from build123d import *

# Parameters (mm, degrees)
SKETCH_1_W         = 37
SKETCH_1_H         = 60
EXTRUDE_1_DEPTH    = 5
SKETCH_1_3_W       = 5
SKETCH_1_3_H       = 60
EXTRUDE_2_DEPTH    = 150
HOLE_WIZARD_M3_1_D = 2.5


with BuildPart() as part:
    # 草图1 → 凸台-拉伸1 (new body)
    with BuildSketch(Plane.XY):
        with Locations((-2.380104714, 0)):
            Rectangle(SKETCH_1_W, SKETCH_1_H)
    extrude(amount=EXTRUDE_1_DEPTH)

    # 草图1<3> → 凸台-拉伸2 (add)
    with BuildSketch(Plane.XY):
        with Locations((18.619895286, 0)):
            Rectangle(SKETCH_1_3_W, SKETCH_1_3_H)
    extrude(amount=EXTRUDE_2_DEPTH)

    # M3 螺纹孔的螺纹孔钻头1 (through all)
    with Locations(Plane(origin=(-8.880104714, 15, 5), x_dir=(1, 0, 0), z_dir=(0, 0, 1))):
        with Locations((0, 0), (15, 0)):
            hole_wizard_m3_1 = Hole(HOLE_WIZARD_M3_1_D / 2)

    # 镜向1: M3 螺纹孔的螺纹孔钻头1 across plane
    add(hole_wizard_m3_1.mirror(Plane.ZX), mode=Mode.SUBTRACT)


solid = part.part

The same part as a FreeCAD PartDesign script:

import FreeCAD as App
import Part
import Sketcher
from FreeCAD import Vector
Q = App.Units.Quantity

doc = App.newDocument("Part")
params = doc.addObject("Spreadsheet::Sheet", "Params")
for row, (alias, value) in enumerate([
    ("sketch1_width", "37 mm"),
    ("sketch1_height", "60 mm"),
    ("pad1_length", "5 mm"),
    ("sketch2_width", "5 mm"),
    ("sketch2_height", "60 mm"),
    ("pad2_length", "150 mm"),
    ("sketch3_diameter", "2.5 mm"),
    ("hole_diameter", "2.5 mm"),
], start=1):
    params.set(f"A{row}", alias)
    params.set(f"B{row}", "=" + value)
    params.setAlias(f"B{row}", alias)

body = doc.addObject("PartDesign::Body", "Body")

sketch1 = body.newObject("Sketcher::SketchObject", "Sketch")
sketch1.AttachmentSupport = (doc.getObject("XY_Plane"), [""])
sketch1.MapMode = "FlatFace"
sketch1.addGeometry([
    Part.LineSegment(Vector(-21, 30, 0), Vector(-21, -30, 0)),
    Part.LineSegment(Vector(-21, -30, 0), Vector(16, -30, 0)),
    Part.LineSegment(Vector(16, -30, 0), Vector(16, 30, 0)),
    Part.LineSegment(Vector(16, 30, 0), Vector(-21, 30, 0)),
], False)
sketch1.addConstraint([
    Sketcher.Constraint("Coincident", 0, 2, 1, 1),
    Sketcher.Constraint("Coincident", 1, 2, 2, 1),
    Sketcher.Constraint("Coincident", 2, 2, 3, 1),
    Sketcher.Constraint("Coincident", 3, 2, 0, 1),
    Sketcher.Constraint("Vertical", 0),
    Sketcher.Constraint("Horizontal", 1),
    Sketcher.Constraint("Vertical", 2),
    Sketcher.Constraint("Horizontal", 3),
    Sketcher.Constraint("DistanceX", 1, 1, 1, 2, Q("37 mm")),
    Sketcher.Constraint("DistanceY", 0, 2, 0, 1, Q("60 mm")),
    Sketcher.Constraint("DistanceY", 0, 2, -1, 1, Q("30 mm")),
    Sketcher.Constraint("DistanceX", 0, 2, -1, 1, Q("20.880105 mm")),
])
sketch1.setExpression("Constraints[8]", "Params.sketch1_width")
sketch1.setExpression("Constraints[9]", "Params.sketch1_height")
pad1 = body.newObject("PartDesign::Pad", "Pad")
pad1.Profile = sketch1
pad1.setExpression("Length", "Params.pad1_length")

sketch2 = body.newObject("Sketcher::SketchObject", "Sketch001")
sketch2.AttachmentSupport = (doc.getObject("XY_Plane"), [""])
sketch2.MapMode = "FlatFace"
sketch2.addGeometry([
    Part.LineSegment(Vector(16, 30, 0), Vector(16, -30, 0)),
    Part.LineSegment(Vector(16, -30, 0), Vector(21, -30, 0)),
    Part.LineSegment(Vector(21, -30, 0), Vector(21, 30, 0)),
    Part.LineSegment(Vector(21, 30, 0), Vector(16, 30, 0)),
], False)
sketch2.addConstraint([
    Sketcher.Constraint("Coincident", 0, 2, 1, 1),
    Sketcher.Constraint("Coincident", 1, 2, 2, 1),
    Sketcher.Constraint("Coincident", 2, 2, 3, 1),
    Sketcher.Constraint("Coincident", 3, 2, 0, 1),
    Sketcher.Constraint("Vertical", 0),
    Sketcher.Constraint("Horizontal", 1),
    Sketcher.Constraint("Vertical", 2),
    Sketcher.Constraint("Horizontal", 3),
    Sketcher.Constraint("DistanceX", 1, 1, 1, 2, Q("5 mm")),
    Sketcher.Constraint("DistanceY", 0, 2, 0, 1, Q("60 mm")),
    Sketcher.Constraint("DistanceY", 0, 2, -1, 1, Q("30 mm")),
    Sketcher.Constraint("DistanceX", -1, 1, 0, 2, Q("16.119895 mm")),
])
sketch2.setExpression("Constraints[8]", "Params.sketch2_width")
sketch2.setExpression("Constraints[9]", "Params.sketch2_height")
pad2 = body.newObject("PartDesign::Pad", "Pad001")
pad2.Profile = sketch2
pad2.setExpression("Length", "Params.pad2_length")

sketch3 = body.newObject("Sketcher::SketchObject", "Sketch002")
sketch3.AttachmentSupport = (doc.getObject("XY_Plane"), [""])
sketch3.MapMode = "FlatFace"
sketch3.AttachmentOffset = App.Placement(Vector(0, 0, 5), App.Rotation())
sketch3.addGeometry([
    Part.Circle(Vector(-8.9, 15, 0), Vector(0, 0, 1), 1.2),
    Part.Circle(Vector(6.1, 15, 0), Vector(0, 0, 1), 1.2),
], False)
sketch3.addConstraint([
    Sketcher.Constraint("Equal", 0, 1),
    Sketcher.Constraint("Horizontal", 0, 3, 1, 3),
    Sketcher.Constraint("Diameter", 0, Q("2.5 mm")),
    Sketcher.Constraint("DistanceY", -1, 1, 0, 3, Q("15 mm")),
    Sketcher.Constraint("DistanceX", 0, 3, 1, 3, Q("15 mm")),
    Sketcher.Constraint("DistanceX", 0, 3, -1, 1, Q("8.880105 mm")),
])
sketch3.setExpression("Constraints[2]", "Params.sketch3_diameter")
doc.recompute()
hole = body.newObject("PartDesign::Hole", "Hole")
hole.Profile = sketch3
hole.ThreadType = "None"
hole.setExpression("Diameter", "Params.hole_diameter")
hole.DepthType = "ThroughAll"
doc.recompute()

mirrored = body.newObject("PartDesign::Mirrored", "Mirrored")
mirrored.Originals = [hole]
mirrored.MirrorPlane = (doc.getObject("XZ_Plane"), [""])
body.Tip = mirrored

doc.recompute()
